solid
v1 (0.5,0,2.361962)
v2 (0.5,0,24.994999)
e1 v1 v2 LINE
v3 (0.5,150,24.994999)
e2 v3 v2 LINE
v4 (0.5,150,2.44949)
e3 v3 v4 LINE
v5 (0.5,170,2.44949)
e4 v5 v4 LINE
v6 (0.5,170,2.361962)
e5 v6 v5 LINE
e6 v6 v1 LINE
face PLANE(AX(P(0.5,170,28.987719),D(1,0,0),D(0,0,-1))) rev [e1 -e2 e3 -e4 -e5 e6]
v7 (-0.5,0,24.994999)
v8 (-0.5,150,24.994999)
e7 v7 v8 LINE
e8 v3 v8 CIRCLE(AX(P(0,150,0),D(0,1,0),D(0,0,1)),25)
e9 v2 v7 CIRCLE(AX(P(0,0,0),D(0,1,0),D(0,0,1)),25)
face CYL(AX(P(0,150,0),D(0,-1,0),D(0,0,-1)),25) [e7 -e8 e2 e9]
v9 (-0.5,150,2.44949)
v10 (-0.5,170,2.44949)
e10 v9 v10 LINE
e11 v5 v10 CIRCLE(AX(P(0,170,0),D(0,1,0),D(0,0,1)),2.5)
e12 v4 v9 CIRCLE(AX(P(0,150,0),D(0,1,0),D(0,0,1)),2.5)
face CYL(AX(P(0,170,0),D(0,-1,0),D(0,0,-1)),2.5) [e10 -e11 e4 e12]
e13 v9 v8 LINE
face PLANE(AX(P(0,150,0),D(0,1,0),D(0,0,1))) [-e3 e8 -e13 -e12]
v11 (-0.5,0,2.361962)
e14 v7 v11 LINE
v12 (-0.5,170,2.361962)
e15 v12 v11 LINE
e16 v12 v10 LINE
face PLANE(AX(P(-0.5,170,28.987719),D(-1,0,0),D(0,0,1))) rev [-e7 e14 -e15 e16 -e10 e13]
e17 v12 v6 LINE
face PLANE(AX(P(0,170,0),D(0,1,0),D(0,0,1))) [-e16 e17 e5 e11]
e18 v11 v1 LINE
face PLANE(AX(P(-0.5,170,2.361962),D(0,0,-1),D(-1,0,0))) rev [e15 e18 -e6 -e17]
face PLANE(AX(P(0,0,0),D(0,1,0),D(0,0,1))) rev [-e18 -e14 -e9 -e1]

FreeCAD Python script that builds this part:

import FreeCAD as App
import Part
import Sketcher
from FreeCAD import Vector


def add_polygon(sketch, points):
    """Adds a closed chain of lines whose ends are joined by coincident constraints."""
    first, n = sketch.GeometryCount, len(points)
    for a, b in zip(points, points[1:] + points[:1]):
        sketch.addGeometry(Part.LineSegment(App.Vector(*a, 0), App.Vector(*b, 0)), False)
    for i in range(n):
        sketch.addConstraint(Sketcher.Constraint("Coincident", first + i, 2, first + (i + 1) % n, 1))

doc = App.newDocument("Part")
body = doc.addObject("PartDesign::Body", "Body")

# Sketch on XZ plane
sketch1 = body.newObject("Sketcher::SketchObject", "Sketch")
sketch1.AttachmentSupport = (doc.getObject("XZ_Plane"), [""])
sketch1.MapMode = "FlatFace"
sketch1.addGeometry(Part.Circle(Vector(0, 0, 0), Vector(0, 0, 1), 25), False)
sketch1.addConstraint(Sketcher.Constraint("Coincident", 0, 3, -1, 1))
sketch1.addConstraint(Sketcher.Constraint("Diameter", 0, 50.0))
pad1 = body.newObject("PartDesign::Pad", "Pad")
pad1.Profile = sketch1
pad1.Length = 150
pad1.Reversed = True

# Sketch on XZ plane
sketch2 = body.newObject("Sketcher::SketchObject", "Sketch001")
sketch2.AttachmentSupport = (doc.getObject("XZ_Plane"), [""])
sketch2.MapMode = "FlatFace"
sketch2.AttachmentOffset = App.Placement(Vector(0, 0, -150), App.Rotation())
sketch2.addGeometry(Part.Circle(Vector(0, 0, 0), Vector(0, 0, 1), 2.5), False)
sketch2.addConstraint(Sketcher.Constraint("Coincident", 0, 3, -1, 1))
sketch2.addConstraint(Sketcher.Constraint("Diameter", 0, 5.0))
pad2 = body.newObject("PartDesign::Pad", "Pad001")
pad2.Profile = sketch2
pad2.Length = 20
pad2.Reversed = True

# Sketch on XZ plane
sketch3 = body.newObject("Sketcher::SketchObject", "Sketch002")
sketch3.AttachmentSupport = (doc.getObject("XZ_Plane"), [""])
sketch3.MapMode = "FlatFace"
add_polygon(sketch3, [(-0.5, 29), (-0.5, 2.4), (0.5, 2.4), (0.5, 29)])  # lines 0-3
sketch3.addConstraint(Sketcher.Constraint("Vertical", 0))
sketch3.addConstraint(Sketcher.Constraint("Horizontal", 1))
sketch3.addConstraint(Sketcher.Constraint("Vertical", 2))
sketch3.addConstraint(Sketcher.Constraint("Horizontal", 3))
sketch3.addConstraint(Sketcher.Constraint("DistanceX", 1, 1, 1, 2, 1.0))
sketch3.addConstraint(Sketcher.Constraint("DistanceX", 0, 2, -1, 1, 0.5))
sketch3.addConstraint(Sketcher.Constraint("DistanceY", 0, 2, 0, 1, 26.625756))
sketch3.addConstraint(Sketcher.Constraint("DistanceY", -1, 1, 2, 2, 28.987719))
pocket1 = body.newObject("PartDesign::Pocket", "Pocket")
pocket1.Profile = sketch3
pocket1.Type = "ThroughAll"

doc.recompute()
